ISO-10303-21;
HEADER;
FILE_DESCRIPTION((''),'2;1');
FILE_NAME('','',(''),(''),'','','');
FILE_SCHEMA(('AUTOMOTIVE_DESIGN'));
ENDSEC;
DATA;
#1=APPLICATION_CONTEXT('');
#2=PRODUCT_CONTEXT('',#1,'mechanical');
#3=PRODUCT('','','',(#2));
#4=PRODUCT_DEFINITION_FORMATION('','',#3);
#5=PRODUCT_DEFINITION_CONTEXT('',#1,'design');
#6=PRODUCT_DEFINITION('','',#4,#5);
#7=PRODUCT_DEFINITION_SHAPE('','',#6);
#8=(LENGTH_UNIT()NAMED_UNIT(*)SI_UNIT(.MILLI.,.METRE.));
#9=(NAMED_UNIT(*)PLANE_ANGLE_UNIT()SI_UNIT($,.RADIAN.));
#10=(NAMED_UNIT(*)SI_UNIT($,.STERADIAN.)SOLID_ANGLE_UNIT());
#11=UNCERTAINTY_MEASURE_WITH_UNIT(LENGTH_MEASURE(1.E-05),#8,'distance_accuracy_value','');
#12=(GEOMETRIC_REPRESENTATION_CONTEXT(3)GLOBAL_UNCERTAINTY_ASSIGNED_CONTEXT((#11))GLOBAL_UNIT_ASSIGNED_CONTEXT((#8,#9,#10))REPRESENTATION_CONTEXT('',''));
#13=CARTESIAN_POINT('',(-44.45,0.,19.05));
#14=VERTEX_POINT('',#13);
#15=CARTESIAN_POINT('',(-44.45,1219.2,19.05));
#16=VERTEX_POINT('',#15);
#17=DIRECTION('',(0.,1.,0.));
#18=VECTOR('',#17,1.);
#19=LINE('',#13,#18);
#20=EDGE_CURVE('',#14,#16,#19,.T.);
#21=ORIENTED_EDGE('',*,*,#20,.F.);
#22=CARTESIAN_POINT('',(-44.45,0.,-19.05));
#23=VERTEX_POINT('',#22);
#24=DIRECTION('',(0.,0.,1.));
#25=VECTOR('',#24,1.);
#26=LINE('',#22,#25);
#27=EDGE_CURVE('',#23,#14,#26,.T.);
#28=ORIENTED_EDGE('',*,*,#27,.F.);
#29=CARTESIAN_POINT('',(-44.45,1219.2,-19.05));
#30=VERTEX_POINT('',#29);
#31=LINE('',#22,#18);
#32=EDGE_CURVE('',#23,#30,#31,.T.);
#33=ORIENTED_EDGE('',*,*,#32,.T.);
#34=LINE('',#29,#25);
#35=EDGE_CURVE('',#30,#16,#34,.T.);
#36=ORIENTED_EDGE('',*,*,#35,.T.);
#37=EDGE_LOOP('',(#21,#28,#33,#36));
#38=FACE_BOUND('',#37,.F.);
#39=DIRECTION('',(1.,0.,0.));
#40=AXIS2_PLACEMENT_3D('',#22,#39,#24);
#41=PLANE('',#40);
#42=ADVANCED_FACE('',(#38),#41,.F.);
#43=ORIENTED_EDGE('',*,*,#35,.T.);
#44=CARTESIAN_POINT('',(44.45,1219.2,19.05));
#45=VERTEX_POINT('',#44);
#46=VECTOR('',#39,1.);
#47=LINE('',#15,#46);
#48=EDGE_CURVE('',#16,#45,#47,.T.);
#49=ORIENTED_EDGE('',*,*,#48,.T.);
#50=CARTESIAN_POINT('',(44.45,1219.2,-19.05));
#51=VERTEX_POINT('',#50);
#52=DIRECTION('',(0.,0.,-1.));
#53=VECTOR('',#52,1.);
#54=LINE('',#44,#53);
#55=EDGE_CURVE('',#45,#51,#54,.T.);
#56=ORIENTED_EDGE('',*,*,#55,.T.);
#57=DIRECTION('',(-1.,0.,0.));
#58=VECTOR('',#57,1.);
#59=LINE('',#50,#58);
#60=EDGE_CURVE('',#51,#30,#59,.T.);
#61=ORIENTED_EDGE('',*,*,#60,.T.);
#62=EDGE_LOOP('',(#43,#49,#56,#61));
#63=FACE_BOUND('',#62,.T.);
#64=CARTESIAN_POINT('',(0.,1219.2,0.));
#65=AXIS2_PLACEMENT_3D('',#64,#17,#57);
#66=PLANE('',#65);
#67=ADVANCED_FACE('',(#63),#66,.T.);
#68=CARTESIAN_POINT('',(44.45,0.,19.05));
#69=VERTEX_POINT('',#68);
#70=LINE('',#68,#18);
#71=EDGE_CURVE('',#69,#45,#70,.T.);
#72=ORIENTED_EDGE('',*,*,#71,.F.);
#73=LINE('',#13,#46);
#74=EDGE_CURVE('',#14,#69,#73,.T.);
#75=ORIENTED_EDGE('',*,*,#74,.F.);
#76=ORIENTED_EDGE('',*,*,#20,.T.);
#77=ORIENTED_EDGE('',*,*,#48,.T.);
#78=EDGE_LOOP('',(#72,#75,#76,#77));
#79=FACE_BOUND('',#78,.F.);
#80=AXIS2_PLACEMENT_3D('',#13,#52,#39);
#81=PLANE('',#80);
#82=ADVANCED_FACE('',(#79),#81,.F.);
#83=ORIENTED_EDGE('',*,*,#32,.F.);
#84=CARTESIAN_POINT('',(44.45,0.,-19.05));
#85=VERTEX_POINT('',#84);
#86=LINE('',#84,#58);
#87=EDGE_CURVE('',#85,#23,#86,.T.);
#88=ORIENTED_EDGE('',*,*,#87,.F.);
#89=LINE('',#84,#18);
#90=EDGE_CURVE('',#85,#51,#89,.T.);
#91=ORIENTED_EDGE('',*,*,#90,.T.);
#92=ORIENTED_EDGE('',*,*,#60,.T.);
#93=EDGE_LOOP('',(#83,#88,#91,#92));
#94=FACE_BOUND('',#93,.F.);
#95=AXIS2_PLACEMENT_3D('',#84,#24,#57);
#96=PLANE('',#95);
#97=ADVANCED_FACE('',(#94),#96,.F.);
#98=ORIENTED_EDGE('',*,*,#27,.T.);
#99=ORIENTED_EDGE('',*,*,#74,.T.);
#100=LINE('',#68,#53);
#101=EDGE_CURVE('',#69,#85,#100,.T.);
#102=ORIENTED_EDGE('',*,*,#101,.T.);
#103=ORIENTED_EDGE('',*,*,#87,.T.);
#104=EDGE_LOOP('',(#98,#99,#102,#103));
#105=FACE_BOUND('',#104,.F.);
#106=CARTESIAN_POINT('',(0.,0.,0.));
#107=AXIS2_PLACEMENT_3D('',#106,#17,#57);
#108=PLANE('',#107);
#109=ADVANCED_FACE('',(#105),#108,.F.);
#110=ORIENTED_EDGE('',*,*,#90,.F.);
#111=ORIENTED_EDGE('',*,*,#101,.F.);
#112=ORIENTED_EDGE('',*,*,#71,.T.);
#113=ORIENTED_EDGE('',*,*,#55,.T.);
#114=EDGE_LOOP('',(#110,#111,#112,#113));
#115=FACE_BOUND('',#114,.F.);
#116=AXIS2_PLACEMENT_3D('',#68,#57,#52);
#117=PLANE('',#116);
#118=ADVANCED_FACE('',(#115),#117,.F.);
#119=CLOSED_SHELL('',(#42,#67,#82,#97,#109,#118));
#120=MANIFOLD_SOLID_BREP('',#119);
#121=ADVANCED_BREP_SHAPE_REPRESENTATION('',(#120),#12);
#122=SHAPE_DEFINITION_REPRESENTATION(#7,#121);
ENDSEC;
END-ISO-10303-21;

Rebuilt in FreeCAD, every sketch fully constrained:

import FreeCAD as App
import Part
import Sketcher
from FreeCAD import Vector
Q = App.Units.Quantity


def add_polygon(sketch, points):
    """Adds a closed chain of lines whose ends are joined by coincident constraints."""
    first, n = sketch.GeometryCount, len(points)
    for a, b in zip(points, points[1:] + points[:1]):
        sketch.addGeometry(Part.LineSegment(App.Vector(*a, 0), App.Vector(*b, 0)), False)
    for i in range(n):
        sketch.addConstraint(Sketcher.Constraint("Coincident", first + i, 2, first + (i + 1) % n, 1))

doc = App.newDocument("Part")
body = doc.addObject("PartDesign::Body", "Body")

sketch1 = doc.addObject("Sketcher::SketchObject", "Sketch")
body.addObject(sketch1)
sketch1.AttachmentSupport = (doc.XZ_Plane, [""])
sketch1.MapMode = "FlatFace"
add_polygon(sketch1, [(44, 19), (44, -19), (-44, -19), (-44, 19)])
sketch1.addConstraint(Sketcher.Constraint("Vertical", 0))
sketch1.addConstraint(Sketcher.Constraint("Horizontal", 1))
sketch1.addConstraint(Sketcher.Constraint("Vertical", 2))
sketch1.addConstraint(Sketcher.Constraint("Horizontal", 3))
sketch1.addConstraint(Sketcher.Constraint("Symmetric", 0, 2, 2, 2, -1, 1))
sketch1.addConstraint(Sketcher.Constraint("DistanceX", 1, 2, 1, 1, Q("3.5 in")))
sketch1.addConstraint(Sketcher.Constraint("DistanceY", 0, 2, 0, 1, Q("1.5 in")))
pad1 = doc.addObject("PartDesign::Pad", "Pad")
body.addObject(pad1)
pad1.Profile = sketch1
pad1.Length = Q("48 in")
pad1.Reversed = True

doc.recompute()
